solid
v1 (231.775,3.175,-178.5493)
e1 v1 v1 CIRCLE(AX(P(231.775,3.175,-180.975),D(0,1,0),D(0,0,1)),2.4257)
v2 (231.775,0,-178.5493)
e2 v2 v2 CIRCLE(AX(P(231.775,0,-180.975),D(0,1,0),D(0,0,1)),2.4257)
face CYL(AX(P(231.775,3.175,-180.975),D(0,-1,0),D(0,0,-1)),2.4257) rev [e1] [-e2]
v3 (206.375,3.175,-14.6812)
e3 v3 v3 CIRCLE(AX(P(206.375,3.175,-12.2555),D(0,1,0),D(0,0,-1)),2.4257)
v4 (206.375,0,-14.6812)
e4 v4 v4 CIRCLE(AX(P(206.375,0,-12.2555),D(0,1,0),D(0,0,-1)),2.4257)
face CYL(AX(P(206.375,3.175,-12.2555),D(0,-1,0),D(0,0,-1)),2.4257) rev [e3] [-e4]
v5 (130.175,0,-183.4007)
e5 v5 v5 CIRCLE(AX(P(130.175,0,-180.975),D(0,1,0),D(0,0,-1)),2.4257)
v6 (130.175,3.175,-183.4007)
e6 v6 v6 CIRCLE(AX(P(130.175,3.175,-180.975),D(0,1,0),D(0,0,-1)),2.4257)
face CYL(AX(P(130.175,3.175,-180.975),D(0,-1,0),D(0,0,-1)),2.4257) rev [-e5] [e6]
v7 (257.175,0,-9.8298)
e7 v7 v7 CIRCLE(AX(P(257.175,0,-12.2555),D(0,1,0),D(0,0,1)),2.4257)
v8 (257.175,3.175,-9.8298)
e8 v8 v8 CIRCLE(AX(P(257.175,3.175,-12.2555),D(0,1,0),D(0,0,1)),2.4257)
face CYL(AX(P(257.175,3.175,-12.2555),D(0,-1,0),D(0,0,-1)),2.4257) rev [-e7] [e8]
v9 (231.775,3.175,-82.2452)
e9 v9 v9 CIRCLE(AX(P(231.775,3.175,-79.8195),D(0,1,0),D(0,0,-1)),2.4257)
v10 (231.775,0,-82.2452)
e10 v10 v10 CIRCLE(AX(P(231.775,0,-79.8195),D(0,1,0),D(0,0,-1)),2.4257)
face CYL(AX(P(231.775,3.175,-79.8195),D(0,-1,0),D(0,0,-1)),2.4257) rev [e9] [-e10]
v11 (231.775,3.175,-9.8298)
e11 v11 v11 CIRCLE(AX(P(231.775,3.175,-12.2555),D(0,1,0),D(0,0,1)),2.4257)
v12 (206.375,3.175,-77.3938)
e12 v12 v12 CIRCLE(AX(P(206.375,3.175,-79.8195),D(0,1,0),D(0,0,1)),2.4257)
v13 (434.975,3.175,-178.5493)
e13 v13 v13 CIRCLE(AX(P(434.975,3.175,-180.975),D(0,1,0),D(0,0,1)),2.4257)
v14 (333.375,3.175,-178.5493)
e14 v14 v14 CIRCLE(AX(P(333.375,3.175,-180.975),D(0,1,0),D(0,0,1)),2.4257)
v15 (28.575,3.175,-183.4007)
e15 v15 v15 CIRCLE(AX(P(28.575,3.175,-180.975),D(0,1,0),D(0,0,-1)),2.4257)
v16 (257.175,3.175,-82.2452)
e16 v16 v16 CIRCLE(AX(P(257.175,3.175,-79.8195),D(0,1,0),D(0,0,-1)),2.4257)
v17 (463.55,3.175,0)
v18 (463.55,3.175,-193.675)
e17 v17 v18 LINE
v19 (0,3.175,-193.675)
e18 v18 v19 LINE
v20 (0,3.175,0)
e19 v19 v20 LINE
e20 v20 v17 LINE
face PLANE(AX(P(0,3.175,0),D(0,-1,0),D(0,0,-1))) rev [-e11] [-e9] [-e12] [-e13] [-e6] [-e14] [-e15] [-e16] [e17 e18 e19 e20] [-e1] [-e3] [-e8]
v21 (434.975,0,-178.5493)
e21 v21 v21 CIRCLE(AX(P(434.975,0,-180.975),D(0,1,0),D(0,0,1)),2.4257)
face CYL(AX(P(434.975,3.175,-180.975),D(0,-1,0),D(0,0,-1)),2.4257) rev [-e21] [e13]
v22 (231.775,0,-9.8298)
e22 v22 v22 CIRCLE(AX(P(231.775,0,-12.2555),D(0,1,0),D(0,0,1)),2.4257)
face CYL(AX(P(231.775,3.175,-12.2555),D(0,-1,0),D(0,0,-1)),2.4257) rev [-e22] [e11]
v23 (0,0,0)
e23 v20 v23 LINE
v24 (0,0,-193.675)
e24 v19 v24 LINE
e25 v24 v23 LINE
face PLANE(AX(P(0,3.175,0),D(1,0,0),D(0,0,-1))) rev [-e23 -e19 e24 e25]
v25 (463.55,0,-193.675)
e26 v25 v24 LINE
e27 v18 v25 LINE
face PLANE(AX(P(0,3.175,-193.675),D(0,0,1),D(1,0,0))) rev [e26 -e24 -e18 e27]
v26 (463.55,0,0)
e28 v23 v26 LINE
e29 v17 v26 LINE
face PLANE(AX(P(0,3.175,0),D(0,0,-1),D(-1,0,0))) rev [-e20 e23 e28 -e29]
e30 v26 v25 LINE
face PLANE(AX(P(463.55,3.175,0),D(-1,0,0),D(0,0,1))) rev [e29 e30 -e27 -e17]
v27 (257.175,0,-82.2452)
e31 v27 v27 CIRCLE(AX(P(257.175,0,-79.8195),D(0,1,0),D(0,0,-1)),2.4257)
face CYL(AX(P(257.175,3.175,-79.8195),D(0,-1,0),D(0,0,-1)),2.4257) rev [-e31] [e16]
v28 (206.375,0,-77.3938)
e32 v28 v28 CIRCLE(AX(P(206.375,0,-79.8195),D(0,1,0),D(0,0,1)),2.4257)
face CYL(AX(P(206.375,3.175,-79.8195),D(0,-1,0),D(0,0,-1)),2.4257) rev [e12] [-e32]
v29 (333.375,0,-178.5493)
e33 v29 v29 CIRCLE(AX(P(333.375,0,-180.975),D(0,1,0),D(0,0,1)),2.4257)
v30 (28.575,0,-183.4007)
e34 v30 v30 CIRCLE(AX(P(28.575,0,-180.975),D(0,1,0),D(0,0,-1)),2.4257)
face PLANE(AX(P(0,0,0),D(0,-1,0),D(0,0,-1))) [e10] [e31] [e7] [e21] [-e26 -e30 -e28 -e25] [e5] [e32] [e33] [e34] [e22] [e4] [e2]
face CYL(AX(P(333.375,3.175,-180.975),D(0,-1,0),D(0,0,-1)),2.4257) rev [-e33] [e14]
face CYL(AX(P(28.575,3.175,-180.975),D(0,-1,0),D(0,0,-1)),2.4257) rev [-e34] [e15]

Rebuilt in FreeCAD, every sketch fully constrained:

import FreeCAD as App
import Part
import Sketcher
Q = App.Units.Quantity

doc = App.newDocument("Part")
body = doc.addObject("PartDesign::Body", "Body")

# Sketch on XZ plane
sketch1 = body.newObject("Sketcher::SketchObject", "Sketch")
sketch1.AttachmentSupport = (doc.getObject("XZ_Plane"), [""])
sketch1.MapMode = "FlatFace"
sketch1.addGeometry([
    Part.LineSegment(App.Vector(0, -193.7, 0), App.Vector(0, 0, 0)),  # 0
    Part.LineSegment(App.Vector(0, 0, 0), App.Vector(463.6, 0, 0)),  # 1
    Part.LineSegment(App.Vector(463.6, 0, 0), App.Vector(463.6, -193.7, 0)),  # 2
    Part.LineSegment(App.Vector(463.6, -193.7, 0), App.Vector(0, -193.7, 0)),  # 3
    Part.Circle(App.Vector(206.4, -12.3, 0), App.Vector(0, 0, 1), 2.4),  # 4
    Part.Circle(App.Vector(206.4, -79.8, 0), App.Vector(0, 0, 1), 2.4),  # 5
    Part.Circle(App.Vector(231.8, -12.3, 0), App.Vector(0, 0, 1), 2.4),  # 6
    Part.Circle(App.Vector(257.2, -12.3, 0), App.Vector(0, 0, 1), 2.4),  # 7
    Part.Circle(App.Vector(231.8, -79.8, 0), App.Vector(0, 0, 1), 2.4),  # 8
    Part.Circle(App.Vector(257.2, -79.8, 0), App.Vector(0, 0, 1), 2.4),  # 9
    Part.Circle(App.Vector(28.6, -181, 0), App.Vector(0, 0, 1), 2.4),  # 10
    Part.Circle(App.Vector(130.2, -181, 0), App.Vector(0, 0, 1), 2.4),  # 11
    Part.Circle(App.Vector(231.8, -181, 0), App.Vector(0, 0, 1), 2.4),  # 12
    Part.Circle(App.Vector(333.4, -181, 0), App.Vector(0, 0, 1), 2.4),  # 13
    Part.Circle(App.Vector(435, -181, 0), App.Vector(0, 0, 1), 2.4),  # 14
], False)
sketch1.addConstraint([
    Sketcher.Constraint("Coincident", 0, 2, 1, 1),
    Sketcher.Constraint("Coincident", 1, 2, 2, 1),
    Sketcher.Constraint("Coincident", 2, 2, 3, 1),
    Sketcher.Constraint("Coincident", 3, 2, 0, 1),
    Sketcher.Constraint("Vertical", 0),
    Sketcher.Constraint("Horizontal", 1),
    Sketcher.Constraint("Vertical", 2),
    Sketcher.Constraint("Horizontal", 3),
    Sketcher.Constraint("Coincident", 0, 2, -1, 1),
    Sketcher.Constraint("Equal", 4, 5),
    Sketcher.Constraint("Equal", 5, 6),
    Sketcher.Constraint("Equal", 6, 7),
    Sketcher.Constraint("Equal", 7, 8),
    Sketcher.Constraint("Equal", 8, 9),
    Sketcher.Constraint("Equal", 9, 10),
    Sketcher.Constraint("Equal", 10, 11),
    Sketcher.Constraint("Equal", 11, 12),
    Sketcher.Constraint("Equal", 12, 13),
    Sketcher.Constraint("Equal", 13, 14),
    Sketcher.Constraint("Horizontal", 4, 3, 6, 3),
    Sketcher.Constraint("Horizontal", 6, 3, 7, 3),
    Sketcher.Constraint("Horizontal", 5, 3, 8, 3),
    Sketcher.Constraint("Horizontal", 8, 3, 9, 3),
    Sketcher.Constraint("Horizontal", 10, 3, 11, 3),
    Sketcher.Constraint("Horizontal", 11, 3, 12, 3),
    Sketcher.Constraint("Horizontal", 12, 3, 13, 3),
    Sketcher.Constraint("Horizontal", 13, 3, 14, 3),
    Sketcher.Constraint("Vertical", 4, 3, 5, 3),
    Sketcher.Constraint("Vertical", 6, 3, 8, 3),
    Sketcher.Constraint("Vertical", 7, 3, 9, 3),
    Sketcher.Constraint("Vertical", 8, 3, 12, 3),
    Sketcher.Constraint("Diameter", 4, Q("0.191 in")),
    Sketcher.Constraint("DistanceX", 4, 3, 6, 3, Q("1 in")),
    Sketcher.Constraint("DistanceX", 6, 3, 7, 3, Q("1 in")),
    Sketcher.Constraint("DistanceX", 10, 3, 5, 3, Q("7 in")),
    Sketcher.Constraint("DistanceX", 10, 3, 11, 3, Q("4 in")),
    Sketcher.Constraint("DistanceX", 12, 3, 13, 3, Q("4 in")),
    Sketcher.Constraint("DistanceX", 13, 3, 14, 3, Q("4 in")),
    Sketcher.Constraint("DistanceX", 1, 1, 1, 2, Q("18.25 in")),
    Sketcher.Constraint("DistanceY", 2, 2, 14, 3, Q("0.5 in")),
    Sketcher.Constraint("DistanceY", 0, 1, 0, 2, Q("7.625 in")),
    Sketcher.Constraint("DistanceY", 5, 3, 4, 3, Q("2.66 in")),
    Sketcher.Constraint("DistanceX", -1, 1, 4, 3, Q("8.125 in")),
    Sketcher.Constraint("DistanceY", 4, 3, -1, 1, Q("0.4825 in")),
])
pad1 = body.newObject("PartDesign::Pad", "Pad")
pad1.Profile = sketch1
pad1.Length = Q("0.125 in")
pad1.Reversed = True

doc.recompute()
